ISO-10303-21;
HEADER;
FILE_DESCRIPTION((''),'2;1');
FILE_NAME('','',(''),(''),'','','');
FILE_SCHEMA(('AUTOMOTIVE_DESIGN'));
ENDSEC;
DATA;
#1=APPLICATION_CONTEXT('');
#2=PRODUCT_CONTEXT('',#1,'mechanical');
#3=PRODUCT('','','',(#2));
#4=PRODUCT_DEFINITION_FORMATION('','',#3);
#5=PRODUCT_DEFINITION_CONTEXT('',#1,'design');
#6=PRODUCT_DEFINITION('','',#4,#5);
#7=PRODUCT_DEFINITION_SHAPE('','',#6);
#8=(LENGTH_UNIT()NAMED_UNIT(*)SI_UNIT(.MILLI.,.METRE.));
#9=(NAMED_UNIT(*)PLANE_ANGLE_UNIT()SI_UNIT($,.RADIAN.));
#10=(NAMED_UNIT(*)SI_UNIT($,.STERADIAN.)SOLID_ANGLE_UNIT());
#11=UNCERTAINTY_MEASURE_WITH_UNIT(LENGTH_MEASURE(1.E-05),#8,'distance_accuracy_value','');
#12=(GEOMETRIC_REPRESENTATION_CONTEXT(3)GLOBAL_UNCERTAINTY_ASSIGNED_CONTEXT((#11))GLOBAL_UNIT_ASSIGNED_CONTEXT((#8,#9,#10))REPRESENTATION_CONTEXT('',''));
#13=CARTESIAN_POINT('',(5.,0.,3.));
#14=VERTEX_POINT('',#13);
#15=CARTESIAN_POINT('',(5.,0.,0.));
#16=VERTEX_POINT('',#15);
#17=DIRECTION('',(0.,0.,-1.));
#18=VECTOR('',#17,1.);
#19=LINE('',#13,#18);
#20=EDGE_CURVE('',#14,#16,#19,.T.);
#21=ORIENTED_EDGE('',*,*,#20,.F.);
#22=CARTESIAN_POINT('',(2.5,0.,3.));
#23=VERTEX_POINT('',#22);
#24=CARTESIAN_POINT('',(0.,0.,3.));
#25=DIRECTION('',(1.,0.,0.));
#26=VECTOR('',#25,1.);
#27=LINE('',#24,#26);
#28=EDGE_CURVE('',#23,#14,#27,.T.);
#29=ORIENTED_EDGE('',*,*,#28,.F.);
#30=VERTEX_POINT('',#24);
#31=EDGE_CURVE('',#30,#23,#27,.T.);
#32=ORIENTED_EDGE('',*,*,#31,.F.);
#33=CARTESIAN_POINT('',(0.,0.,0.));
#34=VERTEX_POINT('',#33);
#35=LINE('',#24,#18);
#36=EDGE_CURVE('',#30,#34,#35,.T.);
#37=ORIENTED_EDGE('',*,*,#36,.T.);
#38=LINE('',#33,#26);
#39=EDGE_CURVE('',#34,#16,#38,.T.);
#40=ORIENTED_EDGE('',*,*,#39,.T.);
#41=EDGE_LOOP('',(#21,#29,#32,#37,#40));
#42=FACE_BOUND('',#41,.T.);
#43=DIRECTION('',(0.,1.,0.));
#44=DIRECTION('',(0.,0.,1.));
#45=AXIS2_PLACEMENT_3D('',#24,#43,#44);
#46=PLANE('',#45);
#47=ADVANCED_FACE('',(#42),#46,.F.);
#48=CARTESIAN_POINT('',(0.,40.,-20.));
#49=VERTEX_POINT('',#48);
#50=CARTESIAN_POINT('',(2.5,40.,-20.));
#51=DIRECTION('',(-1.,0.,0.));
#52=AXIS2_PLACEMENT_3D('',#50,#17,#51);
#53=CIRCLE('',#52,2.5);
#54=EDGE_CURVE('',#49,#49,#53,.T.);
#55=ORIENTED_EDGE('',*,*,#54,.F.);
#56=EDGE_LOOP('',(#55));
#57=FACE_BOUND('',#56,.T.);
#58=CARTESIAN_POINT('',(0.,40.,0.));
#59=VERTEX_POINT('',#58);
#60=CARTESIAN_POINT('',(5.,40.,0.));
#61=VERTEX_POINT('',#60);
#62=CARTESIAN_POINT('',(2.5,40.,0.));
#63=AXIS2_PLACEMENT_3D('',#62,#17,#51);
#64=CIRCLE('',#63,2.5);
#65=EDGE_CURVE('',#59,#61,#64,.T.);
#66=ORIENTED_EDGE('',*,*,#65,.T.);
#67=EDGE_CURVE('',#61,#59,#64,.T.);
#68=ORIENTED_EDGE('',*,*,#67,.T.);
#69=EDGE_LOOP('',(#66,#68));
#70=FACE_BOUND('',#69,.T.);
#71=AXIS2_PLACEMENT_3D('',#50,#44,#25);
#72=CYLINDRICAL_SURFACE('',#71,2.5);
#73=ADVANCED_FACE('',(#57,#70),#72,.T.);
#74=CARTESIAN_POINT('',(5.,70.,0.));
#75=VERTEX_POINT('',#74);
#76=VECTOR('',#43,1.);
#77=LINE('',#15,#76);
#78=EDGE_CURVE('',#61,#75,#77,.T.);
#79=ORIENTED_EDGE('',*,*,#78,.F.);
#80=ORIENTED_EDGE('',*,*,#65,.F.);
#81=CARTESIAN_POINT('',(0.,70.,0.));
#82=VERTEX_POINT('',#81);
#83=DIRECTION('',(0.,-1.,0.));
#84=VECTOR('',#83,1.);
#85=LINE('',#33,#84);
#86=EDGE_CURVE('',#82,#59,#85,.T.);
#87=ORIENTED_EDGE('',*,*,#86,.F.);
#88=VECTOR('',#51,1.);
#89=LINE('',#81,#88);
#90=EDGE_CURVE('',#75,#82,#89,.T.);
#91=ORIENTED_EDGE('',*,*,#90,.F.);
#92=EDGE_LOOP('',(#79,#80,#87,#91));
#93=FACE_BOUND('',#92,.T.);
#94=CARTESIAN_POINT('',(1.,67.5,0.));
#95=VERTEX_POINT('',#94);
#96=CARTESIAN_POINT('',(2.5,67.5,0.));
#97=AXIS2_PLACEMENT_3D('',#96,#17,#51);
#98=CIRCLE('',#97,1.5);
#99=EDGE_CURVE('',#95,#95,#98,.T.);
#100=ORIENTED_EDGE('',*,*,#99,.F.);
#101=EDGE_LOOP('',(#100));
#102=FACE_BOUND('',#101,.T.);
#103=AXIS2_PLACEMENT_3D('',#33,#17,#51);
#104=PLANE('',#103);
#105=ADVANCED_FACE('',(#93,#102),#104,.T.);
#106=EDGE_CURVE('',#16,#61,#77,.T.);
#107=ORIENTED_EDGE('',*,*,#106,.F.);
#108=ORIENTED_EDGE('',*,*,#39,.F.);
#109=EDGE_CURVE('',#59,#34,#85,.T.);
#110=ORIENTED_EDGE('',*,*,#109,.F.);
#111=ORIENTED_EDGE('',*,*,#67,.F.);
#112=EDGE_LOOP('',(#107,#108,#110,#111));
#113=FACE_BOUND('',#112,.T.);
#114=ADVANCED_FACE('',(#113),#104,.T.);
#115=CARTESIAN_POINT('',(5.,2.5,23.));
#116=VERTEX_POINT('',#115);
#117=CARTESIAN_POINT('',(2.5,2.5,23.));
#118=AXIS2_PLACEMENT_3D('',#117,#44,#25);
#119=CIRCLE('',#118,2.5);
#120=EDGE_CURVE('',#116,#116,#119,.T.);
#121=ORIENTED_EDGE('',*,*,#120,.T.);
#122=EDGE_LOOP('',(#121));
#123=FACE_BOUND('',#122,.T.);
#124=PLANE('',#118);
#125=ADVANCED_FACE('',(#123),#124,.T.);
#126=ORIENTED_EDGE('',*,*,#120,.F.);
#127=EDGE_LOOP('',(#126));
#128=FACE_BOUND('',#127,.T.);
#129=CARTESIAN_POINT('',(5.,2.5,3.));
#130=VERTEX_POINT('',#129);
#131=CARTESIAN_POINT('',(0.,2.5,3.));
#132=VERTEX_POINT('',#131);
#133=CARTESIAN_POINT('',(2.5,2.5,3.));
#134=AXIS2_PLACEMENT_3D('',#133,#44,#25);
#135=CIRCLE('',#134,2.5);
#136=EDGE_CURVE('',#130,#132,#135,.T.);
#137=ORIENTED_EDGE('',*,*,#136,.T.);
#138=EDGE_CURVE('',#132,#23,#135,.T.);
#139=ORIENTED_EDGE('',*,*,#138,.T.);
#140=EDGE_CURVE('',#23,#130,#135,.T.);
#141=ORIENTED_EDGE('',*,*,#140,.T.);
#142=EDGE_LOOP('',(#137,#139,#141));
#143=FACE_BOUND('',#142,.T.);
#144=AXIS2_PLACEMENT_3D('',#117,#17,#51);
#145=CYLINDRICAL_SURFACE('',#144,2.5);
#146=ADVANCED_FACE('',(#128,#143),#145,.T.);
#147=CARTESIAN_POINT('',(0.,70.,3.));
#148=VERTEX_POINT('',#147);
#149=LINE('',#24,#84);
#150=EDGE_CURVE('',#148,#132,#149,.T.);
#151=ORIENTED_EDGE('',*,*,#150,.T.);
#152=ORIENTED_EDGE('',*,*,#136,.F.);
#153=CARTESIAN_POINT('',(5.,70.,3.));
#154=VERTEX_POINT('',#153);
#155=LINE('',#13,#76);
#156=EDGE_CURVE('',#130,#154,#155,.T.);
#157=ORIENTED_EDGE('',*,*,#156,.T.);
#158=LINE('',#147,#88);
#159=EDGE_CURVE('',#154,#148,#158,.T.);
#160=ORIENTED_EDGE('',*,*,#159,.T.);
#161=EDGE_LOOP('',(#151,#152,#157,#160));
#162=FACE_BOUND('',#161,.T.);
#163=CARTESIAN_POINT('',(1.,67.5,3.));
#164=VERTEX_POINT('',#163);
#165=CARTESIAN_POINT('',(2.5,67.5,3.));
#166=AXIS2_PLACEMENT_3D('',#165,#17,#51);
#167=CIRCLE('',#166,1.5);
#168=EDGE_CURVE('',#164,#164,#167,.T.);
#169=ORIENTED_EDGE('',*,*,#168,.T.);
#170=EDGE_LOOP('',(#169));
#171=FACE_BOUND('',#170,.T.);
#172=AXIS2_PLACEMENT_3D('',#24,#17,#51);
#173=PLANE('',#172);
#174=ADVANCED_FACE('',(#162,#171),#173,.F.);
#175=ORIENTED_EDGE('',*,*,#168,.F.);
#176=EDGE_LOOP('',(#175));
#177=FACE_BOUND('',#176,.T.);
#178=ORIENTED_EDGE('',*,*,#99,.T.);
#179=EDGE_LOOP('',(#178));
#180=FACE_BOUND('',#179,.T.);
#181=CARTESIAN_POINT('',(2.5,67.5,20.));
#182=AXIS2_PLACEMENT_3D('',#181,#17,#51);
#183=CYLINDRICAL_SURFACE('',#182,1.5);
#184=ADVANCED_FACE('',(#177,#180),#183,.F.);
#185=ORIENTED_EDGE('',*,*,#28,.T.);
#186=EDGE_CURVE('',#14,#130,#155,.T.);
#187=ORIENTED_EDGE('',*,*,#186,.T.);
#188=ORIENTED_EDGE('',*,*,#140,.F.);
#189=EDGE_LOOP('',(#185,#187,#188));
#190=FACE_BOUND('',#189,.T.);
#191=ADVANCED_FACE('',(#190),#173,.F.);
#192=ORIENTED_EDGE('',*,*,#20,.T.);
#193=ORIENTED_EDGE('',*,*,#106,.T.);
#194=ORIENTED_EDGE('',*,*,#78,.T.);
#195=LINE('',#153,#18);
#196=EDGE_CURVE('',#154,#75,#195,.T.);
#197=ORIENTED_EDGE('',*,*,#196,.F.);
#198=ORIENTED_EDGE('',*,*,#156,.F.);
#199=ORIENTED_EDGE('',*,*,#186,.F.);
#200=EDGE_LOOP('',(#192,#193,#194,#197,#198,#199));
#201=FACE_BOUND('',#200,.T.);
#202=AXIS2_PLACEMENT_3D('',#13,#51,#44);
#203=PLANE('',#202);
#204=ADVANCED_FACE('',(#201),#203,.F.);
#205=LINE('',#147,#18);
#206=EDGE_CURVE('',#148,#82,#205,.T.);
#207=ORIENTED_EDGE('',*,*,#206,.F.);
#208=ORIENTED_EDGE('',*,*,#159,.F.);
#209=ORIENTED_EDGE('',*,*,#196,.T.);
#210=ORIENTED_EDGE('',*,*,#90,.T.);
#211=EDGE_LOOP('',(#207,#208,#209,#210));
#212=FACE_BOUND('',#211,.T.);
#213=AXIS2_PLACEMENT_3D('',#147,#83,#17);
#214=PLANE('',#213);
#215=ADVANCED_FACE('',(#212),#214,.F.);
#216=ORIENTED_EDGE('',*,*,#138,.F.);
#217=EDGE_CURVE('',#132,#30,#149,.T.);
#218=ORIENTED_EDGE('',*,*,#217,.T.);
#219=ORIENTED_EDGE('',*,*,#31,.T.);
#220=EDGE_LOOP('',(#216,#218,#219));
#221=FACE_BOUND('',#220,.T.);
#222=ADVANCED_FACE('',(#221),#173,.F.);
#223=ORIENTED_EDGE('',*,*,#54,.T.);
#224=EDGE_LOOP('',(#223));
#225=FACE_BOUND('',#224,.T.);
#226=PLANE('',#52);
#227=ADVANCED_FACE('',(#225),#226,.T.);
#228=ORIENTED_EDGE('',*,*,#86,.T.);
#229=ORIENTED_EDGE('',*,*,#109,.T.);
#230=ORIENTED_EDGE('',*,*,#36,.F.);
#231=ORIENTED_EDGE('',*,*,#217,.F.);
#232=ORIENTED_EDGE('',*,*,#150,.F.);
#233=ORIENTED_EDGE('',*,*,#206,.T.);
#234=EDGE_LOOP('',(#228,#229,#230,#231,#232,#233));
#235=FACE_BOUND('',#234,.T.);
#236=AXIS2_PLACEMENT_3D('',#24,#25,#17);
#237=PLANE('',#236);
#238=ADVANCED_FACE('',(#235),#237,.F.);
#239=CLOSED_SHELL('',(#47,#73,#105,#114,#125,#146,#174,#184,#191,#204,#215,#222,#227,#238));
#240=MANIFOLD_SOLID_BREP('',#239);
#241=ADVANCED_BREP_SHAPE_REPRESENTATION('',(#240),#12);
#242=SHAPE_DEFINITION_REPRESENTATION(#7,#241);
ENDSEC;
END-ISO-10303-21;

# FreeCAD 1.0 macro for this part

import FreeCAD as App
import Part
import Sketcher
Q = App.Units.Quantity


def add_polygon(sketch, points):
    """Adds a closed chain of lines whose ends are joined by coincident constraints."""
    first, n = sketch.GeometryCount, len(points)
    for a, b in zip(points, points[1:] + points[:1]):
        sketch.addGeometry(Part.LineSegment(App.Vector(*a, 0), App.Vector(*b, 0)), False)
    for i in range(n):
        sketch.addConstraint(Sketcher.Constraint("Coincident", first + i, 2, first + (i + 1) % n, 1))

doc = App.newDocument("Part")
body = doc.addObject("PartDesign::Body", "Body")

# Sketch on XY plane
sketch1 = body.newObject("Sketcher::SketchObject", "Sketch")
sketch1.AttachmentSupport = (doc.getObject("XY_Plane"), [""])
sketch1.MapMode = "FlatFace"
add_polygon(sketch1, [(0, 70), (0, 0), (5, 0), (5, 70)])  # lines 0-3
sketch1.addConstraint([
    Sketcher.Constraint("Vertical", 0),
    Sketcher.Constraint("Horizontal", 1),
    Sketcher.Constraint("Vertical", 2),
    Sketcher.Constraint("Horizontal", 3),
    Sketcher.Constraint("Coincident", 0, 2, -1, 1),
    Sketcher.Constraint("DistanceX", 1, 1, 1, 2, Q("5 mm")),
    Sketcher.Constraint("DistanceY", 0, 2, 0, 1, Q("70 mm")),
])
pad1 = body.newObject("PartDesign::Pad", "Pad")
pad1.Profile = sketch1
pad1.Length = 3

# Sketch on XY plane
sketch2 = body.newObject("Sketcher::SketchObject", "Sketch001")
sketch2.AttachmentSupport = (doc.getObject("XY_Plane"), [""])
sketch2.MapMode = "FlatFace"
sketch2.AttachmentOffset = App.Placement(App.Vector(0, 0, 3), App.Rotation())
sketch2.addGeometry(Part.Circle(App.Vector(2.5, 2.5, 0), App.Vector(0, 0, 1), 2.5), False)
sketch2.addConstraint([
    Sketcher.Constraint("Diameter", 0, Q("5 mm")),
    Sketcher.Constraint("DistanceX", -1, 1, 0, 3, Q("2.5 mm")),
    Sketcher.Constraint("DistanceY", -1, 1, 0, 3, Q("2.5 mm")),
])
pad2 = body.newObject("PartDesign::Pad", "Pad001")
pad2.Profile = sketch2
pad2.Length = 20

# Sketch on XY plane
sketch3 = body.newObject("Sketcher::SketchObject", "Sketch002")
sketch3.AttachmentSupport = (doc.getObject("XY_Plane"), [""])
sketch3.MapMode = "FlatFace"
sketch3.addGeometry(Part.Circle(App.Vector(2.5, 40, 0), App.Vector(0, 0, 1), 2.5), False)
sketch3.addConstraint([
    Sketcher.Constraint("Diameter", 0, Q("5 mm")),
    Sketcher.Constraint("DistanceY", -1, 1, 0, 3, Q("40 mm")),
    Sketcher.Constraint("DistanceX", -1, 1, 0, 3, Q("2.5 mm")),
])
pad3 = body.newObject("PartDesign::Pad", "Pad002")
pad3.Profile = sketch3
pad3.Length = 20
pad3.Reversed = True

# Sketch on XY plane
sketch4 = body.newObject("Sketcher::SketchObject", "Sketch003")
sketch4.AttachmentSupport = (doc.getObject("XY_Plane"), [""])
sketch4.MapMode = "FlatFace"
sketch4.addGeometry(Part.Circle(App.Vector(2.5, 67.5, 0), App.Vector(0, 0, 1), 1.5), False)
sketch4.addConstraint([
    Sketcher.Constraint("Diameter", 0, Q("3 mm")),
    Sketcher.Constraint("DistanceX", -1, 1, 0, 3, Q("2.5 mm")),
    Sketcher.Constraint("DistanceY", -1, 1, 0, 3, Q("67.5 mm")),
])
pocket1 = body.newObject("PartDesign::Pocket", "Pocket")
pocket1.Profile = sketch4
pocket1.Length = 20
pocket1.Reversed = True

doc.recompute()
